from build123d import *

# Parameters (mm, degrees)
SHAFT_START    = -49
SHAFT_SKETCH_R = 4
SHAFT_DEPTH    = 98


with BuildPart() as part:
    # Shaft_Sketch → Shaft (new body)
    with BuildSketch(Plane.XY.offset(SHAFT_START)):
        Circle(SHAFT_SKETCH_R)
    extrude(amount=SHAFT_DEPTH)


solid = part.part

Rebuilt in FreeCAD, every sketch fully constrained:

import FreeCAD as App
import Part
import Sketcher

V = App.Vector
Q = App.Units.Quantity

doc = App.newDocument("Part")
params = doc.addObject("Spreadsheet::Sheet", "Params")
for row, (alias, value) in enumerate([
    ("sketch1_diameter", "8 mm"),
    ("pad1_length", "98 mm"),
], start=1):
    params.set(f"A{row}", alias)
    params.set(f"B{row}", "=" + value)
    params.setAlias(f"B{row}", alias)

body = doc.addObject("PartDesign::Body", "Body")

# Sketch on XY plane
sketch1 = body.newObject("Sketcher::SketchObject", "Sketch")
sketch1.AttachmentSupport = (doc.getObject("XY_Plane"), [""])
sketch1.MapMode = "FlatFace"
sketch1.AttachmentOffset = App.Placement(V(0, 0, -49), App.Rotation())
sketch1.addGeometry(Part.Circle(V(0, 0, 0), V(0, 0, 1), 4), False)
sketch1.addConstraint(Sketcher.Constraint("Coincident", 0, 3, -1, 1))
sketch1.addConstraint(Sketcher.Constraint("Diameter", 0, Q("8 mm")))
sketch1.setExpression("Constraints[1]", "Params.sketch1_diameter")
pad1 = body.newObject("PartDesign::Pad", "Pad")
pad1.Profile = sketch1
pad1.setExpression("Length", "Params.pad1_length")

doc.recompute()
